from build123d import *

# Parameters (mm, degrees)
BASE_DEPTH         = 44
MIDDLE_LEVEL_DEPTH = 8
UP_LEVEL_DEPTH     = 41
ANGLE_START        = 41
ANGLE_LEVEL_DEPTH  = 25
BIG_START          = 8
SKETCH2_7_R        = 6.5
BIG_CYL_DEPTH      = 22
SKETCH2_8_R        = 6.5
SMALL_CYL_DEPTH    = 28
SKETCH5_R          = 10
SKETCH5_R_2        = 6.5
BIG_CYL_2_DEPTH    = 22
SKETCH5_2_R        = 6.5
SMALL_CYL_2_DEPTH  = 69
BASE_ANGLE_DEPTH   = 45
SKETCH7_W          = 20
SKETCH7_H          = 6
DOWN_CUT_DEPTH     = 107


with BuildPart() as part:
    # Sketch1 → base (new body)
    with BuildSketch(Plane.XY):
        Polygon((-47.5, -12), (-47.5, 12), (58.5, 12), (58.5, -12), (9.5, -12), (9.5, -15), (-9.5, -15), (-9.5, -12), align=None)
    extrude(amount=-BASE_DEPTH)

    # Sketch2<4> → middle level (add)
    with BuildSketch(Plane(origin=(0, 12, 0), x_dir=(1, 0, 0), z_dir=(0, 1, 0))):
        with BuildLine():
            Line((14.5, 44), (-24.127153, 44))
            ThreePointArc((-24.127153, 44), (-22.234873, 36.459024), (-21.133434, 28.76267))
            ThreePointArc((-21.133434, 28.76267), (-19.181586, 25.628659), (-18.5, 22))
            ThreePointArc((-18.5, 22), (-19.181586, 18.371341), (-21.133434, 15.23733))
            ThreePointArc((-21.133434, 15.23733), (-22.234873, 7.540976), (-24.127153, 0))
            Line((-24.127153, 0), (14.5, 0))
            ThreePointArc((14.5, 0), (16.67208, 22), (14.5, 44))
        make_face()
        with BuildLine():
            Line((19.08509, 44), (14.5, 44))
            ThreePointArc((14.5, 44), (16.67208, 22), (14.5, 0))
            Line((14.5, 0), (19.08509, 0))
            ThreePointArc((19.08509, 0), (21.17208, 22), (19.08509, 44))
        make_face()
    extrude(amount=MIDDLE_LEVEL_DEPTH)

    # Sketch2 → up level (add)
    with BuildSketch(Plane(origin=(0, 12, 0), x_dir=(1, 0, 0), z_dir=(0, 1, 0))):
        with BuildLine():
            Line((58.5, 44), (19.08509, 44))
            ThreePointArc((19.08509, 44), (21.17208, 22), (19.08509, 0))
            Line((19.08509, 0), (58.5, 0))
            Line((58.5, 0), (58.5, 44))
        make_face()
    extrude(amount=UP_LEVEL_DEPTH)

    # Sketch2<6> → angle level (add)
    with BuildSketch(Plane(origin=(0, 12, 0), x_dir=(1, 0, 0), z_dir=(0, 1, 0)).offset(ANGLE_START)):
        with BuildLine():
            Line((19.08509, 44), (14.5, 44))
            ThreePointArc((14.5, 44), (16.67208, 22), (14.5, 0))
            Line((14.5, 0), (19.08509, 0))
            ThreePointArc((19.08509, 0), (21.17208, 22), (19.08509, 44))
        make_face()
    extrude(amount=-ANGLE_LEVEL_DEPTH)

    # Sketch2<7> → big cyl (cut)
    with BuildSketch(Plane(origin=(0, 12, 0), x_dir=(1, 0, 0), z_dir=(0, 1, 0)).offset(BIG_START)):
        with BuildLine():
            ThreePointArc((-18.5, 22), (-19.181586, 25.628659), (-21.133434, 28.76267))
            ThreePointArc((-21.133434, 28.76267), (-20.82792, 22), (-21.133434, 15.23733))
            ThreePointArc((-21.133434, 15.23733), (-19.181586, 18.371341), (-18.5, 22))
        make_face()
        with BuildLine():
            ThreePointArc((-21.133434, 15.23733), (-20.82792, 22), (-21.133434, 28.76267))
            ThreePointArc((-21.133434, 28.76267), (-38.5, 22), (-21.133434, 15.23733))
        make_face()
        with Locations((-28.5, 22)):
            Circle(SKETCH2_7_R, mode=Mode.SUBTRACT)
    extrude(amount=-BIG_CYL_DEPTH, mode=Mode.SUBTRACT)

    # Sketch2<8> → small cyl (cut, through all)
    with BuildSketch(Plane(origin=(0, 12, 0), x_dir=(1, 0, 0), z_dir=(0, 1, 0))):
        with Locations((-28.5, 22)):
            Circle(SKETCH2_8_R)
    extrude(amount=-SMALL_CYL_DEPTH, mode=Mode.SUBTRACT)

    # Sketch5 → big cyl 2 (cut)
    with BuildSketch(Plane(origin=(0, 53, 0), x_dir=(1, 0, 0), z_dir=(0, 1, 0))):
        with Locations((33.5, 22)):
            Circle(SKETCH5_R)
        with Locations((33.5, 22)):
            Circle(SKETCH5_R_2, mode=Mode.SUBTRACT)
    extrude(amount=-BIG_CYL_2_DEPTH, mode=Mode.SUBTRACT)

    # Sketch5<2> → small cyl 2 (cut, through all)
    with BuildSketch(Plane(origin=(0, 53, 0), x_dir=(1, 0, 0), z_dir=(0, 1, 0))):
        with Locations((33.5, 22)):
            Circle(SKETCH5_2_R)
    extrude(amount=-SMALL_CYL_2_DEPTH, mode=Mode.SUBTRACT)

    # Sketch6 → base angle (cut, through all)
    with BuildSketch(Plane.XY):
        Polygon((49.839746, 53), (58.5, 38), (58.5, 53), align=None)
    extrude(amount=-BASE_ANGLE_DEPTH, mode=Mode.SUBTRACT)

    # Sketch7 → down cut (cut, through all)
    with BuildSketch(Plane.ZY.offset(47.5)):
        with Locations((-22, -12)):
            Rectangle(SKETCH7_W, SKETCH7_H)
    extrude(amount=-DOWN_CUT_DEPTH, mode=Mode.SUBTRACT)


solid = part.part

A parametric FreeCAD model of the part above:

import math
import FreeCAD as App
import Part
import Sketcher

V = App.Vector
Q = App.Units.Quantity

doc = App.newDocument("Part")
body = doc.addObject("PartDesign::Body", "Body")

# Sketch on XY plane
sketch1 = body.newObject("Sketcher::SketchObject", "Sketch")
sketch1.AttachmentSupport = (doc.getObject("XY_Plane"), [""])
sketch1.MapMode = "FlatFace"
sketch1.addGeometry([
    Part.LineSegment(V(-47.5, 12, 0), V(-47.5, -12, 0)),  # 0
    Part.LineSegment(V(-47.5, -12, 0), V(-9.5, -12, 0)),  # 1
    Part.LineSegment(V(-9.5, -12, 0), V(-9.5, -15, 0)),  # 2
    Part.LineSegment(V(-9.5, -15, 0), V(9.5, -15, 0)),  # 3
    Part.LineSegment(V(9.5, -15, 0), V(9.5, -12, 0)),  # 4
    Part.LineSegment(V(9.5, -12, 0), V(58.5, -12, 0)),  # 5
    Part.LineSegment(V(58.5, -12, 0), V(58.5, 12, 0)),  # 6
    Part.LineSegment(V(58.5, 12, 0), V(-47.5, 12, 0)),  # 7
], False)
sketch1.addConstraint([
    Sketcher.Constraint("Coincident", 0, 2, 1, 1),
    Sketcher.Constraint("Coincident", 1, 2, 2, 1),
    Sketcher.Constraint("Coincident", 2, 2, 3, 1),
    Sketcher.Constraint("Coincident", 3, 2, 4, 1),
    Sketcher.Constraint("Coincident", 4, 2, 5, 1),
    Sketcher.Constraint("Coincident", 5, 2, 6, 1),
    Sketcher.Constraint("Coincident", 6, 2, 7, 1),
    Sketcher.Constraint("Coincident", 7, 2, 0, 1),
    Sketcher.Constraint("Vertical", 0),
    Sketcher.Constraint("Horizontal", 1),
    Sketcher.Constraint("Vertical", 2),
    Sketcher.Constraint("Horizontal", 3),
    Sketcher.Constraint("Vertical", 4),
    Sketcher.Constraint("Horizontal", 5),
    Sketcher.Constraint("Vertical", 6),
    Sketcher.Constraint("Horizontal", 7),
    Sketcher.Constraint("Symmetric", 1, 2, 4, 2, -2),
    Sketcher.Constraint("DistanceX", 1, 1, 1, 2, Q("38 mm")),
    Sketcher.Constraint("DistanceX", 3, 1, 3, 2, Q("19 mm")),
    Sketcher.Constraint("DistanceX", 5, 1, 5, 2, Q("49 mm")),
    Sketcher.Constraint("DistanceY", 0, 2, 0, 1, Q("24 mm")),
    Sketcher.Constraint("DistanceY", 2, 2, 2, 1, Q("3 mm")),
    Sketcher.Constraint("DistanceY", 0, 2, -1, 1, Q("12 mm")),
])
pad1 = body.newObject("PartDesign::Pad", "Pad")
pad1.Profile = sketch1
pad1.Length = 44
pad1.Reversed = True

# Sketch on XZ plane
sketch2 = body.newObject("Sketcher::SketchObject", "Sketch001")
sketch2.AttachmentSupport = (doc.getObject("XZ_Plane"), [""])
sketch2.MapMode = "FlatFace"
sketch2.AttachmentOffset = App.Placement(V(0, 0, -12), App.Rotation())
sketch2.addGeometry([
    Part.ArcOfCircle(Part.Circle(V(-95.82795, -21.999996, 0), V(0, 0, 1), 75.00003), math.radians(-17.05762), math.radians(-5.173327)),  # 0
    Part.ArcOfCircle(Part.Circle(V(-28.499996, -22.000001, 0), V(0, 0, 1), 9.999996), math.radians(-42.552626), math.radians(0.000008)),  # 1
    Part.ArcOfCircle(Part.Circle(V(-28.499996, -21.999999, 0), V(0, 0, 1), 9.999996), math.radians(-0.000008), math.radians(42.552626)),  # 2
    Part.ArcOfCircle(Part.Circle(V(-95.82795, -22.000004, 0), V(0, 0, 1), 75.00003), math.radians(5.173327), math.radians(17.05762)),  # 3
    Part.LineSegment(V(-24.127153, 0, 0), V(19.08509, 0, 0)),  # 4
    Part.ArcOfCircle(Part.Circle(V(-95.827888, -22, 0), V(0, 0, 1), 116.999968), math.radians(-10.838087), math.radians(10.838087)),  # 5
    Part.LineSegment(V(19.08509, -44, 0), V(-24.127153, -44, 0)),  # 6
], False)
sketch2.addConstraint([
    Sketcher.Constraint("Coincident", 0, 2, 1, 1),
    Sketcher.Constraint("Tangent", 1, 2, 2, 1),
    Sketcher.Constraint("Coincident", 2, 2, 3, 1),
    Sketcher.Constraint("Coincident", 3, 2, 4, 1),
    Sketcher.Constraint("Coincident", 4, 2, 5, 2),
    Sketcher.Constraint("Coincident", 5, 1, 6, 1),
    Sketcher.Constraint("Coincident", 6, 2, 0, 1),
    Sketcher.Constraint("Horizontal", 4),
    Sketcher.Constraint("Horizontal", 6),
    Sketcher.Constraint("Coincident", 3, 3, 0, 3),
    Sketcher.Constraint("Equal", 1, 2),
    Sketcher.Constraint("Equal", 0, 3),
    Sketcher.Constraint("PointOnObject", 3, 2, -1),
    Sketcher.Constraint("Horizontal", 2, 3, 5, 3),
    Sketcher.Constraint("Horizontal", 5, 3, 1, 2),
    Sketcher.Constraint("Vertical", 0, 2, 2, 2),
    Sketcher.Constraint("Vertical", 4, 2, 5, 1),
    Sketcher.Constraint("DistanceY", 1, 3, -1, 1, Q("22.000001 mm")),
    Sketcher.Constraint("DistanceX", 1, 2, -1, 1, Q("18.5 mm")),
    Sketcher.Constraint("Radius", 0, Q("75.00003 mm")),
    Sketcher.Constraint("Radius", 5, Q("116.999968 mm")),
    Sketcher.Constraint("Radius", 1, Q("9.999996 mm")),
    Sketcher.Constraint("DistanceX", 4, 1, 4, 2, Q("43.212243 mm")),
    Sketcher.Constraint("DistanceX", 0, 3, -1, 1, Q("95.82795 mm")),
])
pad2 = body.newObject("PartDesign::Pad", "Pad001")
pad2.Profile = sketch2
pad2.Length = 8
pad2.Reversed = True

# Sketch on XZ plane
sketch3 = body.newObject("Sketcher::SketchObject", "Sketch002")
sketch3.AttachmentSupport = (doc.getObject("XZ_Plane"), [""])
sketch3.MapMode = "FlatFace"
sketch3.AttachmentOffset = App.Placement(V(0, 0, -12), App.Rotation())
sketch3.addGeometry([
    Part.LineSegment(V(58.5, -44, 0), V(19.08509, -44, 0)),
    Part.ArcOfCircle(Part.Circle(V(-95.827888, -22, 0), V(0, 0, 1), 116.999968), math.radians(-10.838087), math.radians(10.838087)),
    Part.LineSegment(V(19.08509, 0, 0), V(58.5, 0, 0)),
    Part.LineSegment(V(58.5, 0, 0), V(58.5, -44, 0)),
], False)
sketch3.addConstraint([
    Sketcher.Constraint("Coincident", 0, 2, 1, 1),
    Sketcher.Constraint("Coincident", 1, 2, 2, 1),
    Sketcher.Constraint("Coincident", 2, 2, 3, 1),
    Sketcher.Constraint("Coincident", 3, 2, 0, 1),
    Sketcher.Constraint("Horizontal", 0),
    Sketcher.Constraint("Horizontal", 2),
    Sketcher.Constraint("Vertical", 3),
    Sketcher.Constraint("PointOnObject", 1, 2, -1),
    Sketcher.Constraint("Vertical", 0, 2, 1, 2),
    Sketcher.Constraint("DistanceY", 3, 2, 3, 1, Q("44 mm")),
    Sketcher.Constraint("DistanceX", -1, 1, 2, 2, Q("58.5 mm")),
    Sketcher.Constraint("Radius", 1, Q("116.999968 mm")),
    Sketcher.Constraint("DistanceX", 0, 2, 0, 1, Q("39.41491 mm")),
])
pad3 = body.newObject("PartDesign::Pad", "Pad002")
pad3.Profile = sketch3
pad3.Length = 41
pad3.Reversed = True

# Sketch on XZ plane
sketch4 = body.newObject("Sketcher::SketchObject", "Sketch003")
sketch4.AttachmentSupport = (doc.getObject("XZ_Plane"), [""])
sketch4.MapMode = "FlatFace"
sketch4.AttachmentOffset = App.Placement(V(0, 0, -53), App.Rotation())
sketch4.addGeometry([
    Part.LineSegment(V(19.08509, -44, 0), V(14.5, -44, 0)),
    Part.ArcOfCircle(Part.Circle(V(-95.827904, -22, 0), V(0, 0, 1), 112.499984), math.radians(-11.277181), math.radians(11.277181)),
    Part.LineSegment(V(14.5, 0, 0), V(19.08509, 0, 0)),
    Part.ArcOfCircle(Part.Circle(V(-95.827888, -22, 0), V(0, 0, 1), 116.999968), math.radians(-10.838087), math.radians(10.838087)),
], False)
sketch4.addConstraint([
    Sketcher.Constraint("Coincident", 0, 2, 1, 1),
    Sketcher.Constraint("Coincident", 1, 2, 2, 1),
    Sketcher.Constraint("Coincident", 2, 2, 3, 2),
    Sketcher.Constraint("Coincident", 3, 1, 0, 1),
    Sketcher.Constraint("Horizontal", 0),
    Sketcher.Constraint("Horizontal", 2),
    Sketcher.Constraint("PointOnObject", 1, 2, -1),
    Sketcher.Constraint("Horizontal", 1, 3, 3, 3),
    Sketcher.Constraint("Vertical", 0, 2, 1, 2),
    Sketcher.Constraint("DistanceY", 1, 3, -1, 1, Q("22 mm")),
    Sketcher.Constraint("DistanceX", -1, 1, 0, 2, Q("14.5 mm")),
    Sketcher.Constraint("Radius", 3, Q("116.999968 mm")),
    Sketcher.Constraint("Radius", 1, Q("112.499984 mm")),
    Sketcher.Constraint("DistanceX", 0, 2, 0, 1, Q("4.58509 mm")),
])
pad4 = body.newObject("PartDesign::Pad", "Pad003")
pad4.Profile = sketch4
pad4.Length = 25

# Sketch on XZ plane
sketch5 = body.newObject("Sketcher::SketchObject", "Sketch004")
sketch5.AttachmentSupport = (doc.getObject("XZ_Plane"), [""])
sketch5.MapMode = "FlatFace"
sketch5.AttachmentOffset = App.Placement(V(0, 0, -20), App.Rotation())
sketch5.addGeometry([
    Part.ArcOfCircle(Part.Circle(V(-28.499996, -22.000001, 0), V(0, 0, 1), 9.999996), math.radians(-42.552626), math.radians(0.000008)),
    Part.ArcOfCircle(Part.Circle(V(-28.5, -22, 0), V(0, 0, 1), 10), math.radians(42.552617), math.radians(317.447383)),
    Part.ArcOfCircle(Part.Circle(V(-28.499996, -21.999999, 0), V(0, 0, 1), 9.999996), math.radians(-0.000008), math.radians(42.552626)),
    Part.Circle(V(-28.5, -22, 0), V(0, 0, 1), 6.5),
], False)
sketch5.addConstraint([
    Sketcher.Constraint("Tangent", 0, 1, 1, 2),
    Sketcher.Constraint("Tangent", 1, 1, 2, 2),
    Sketcher.Constraint("Tangent", 2, 1, 0, 2),
    Sketcher.Constraint("Coincident", 3, 3, 0, 3),
    Sketcher.Constraint("Horizontal", 3, 3, 2, 1),
    Sketcher.Constraint("Vertical", 0, 1, 1, 1),
    Sketcher.Constraint("Diameter", 3, Q("13 mm")),
    Sketcher.Constraint("Radius", 1, Q("10 mm")),
    Sketcher.Constraint("DistanceY", 0, 3, -1, 1, Q("22.000001 mm")),
    Sketcher.Constraint("DistanceX", 1, 3, -1, 1, Q("28.5 mm")),
    Sketcher.Constraint("DistanceY", 0, 1, -1, 1, Q("28.76267 mm")),
])
pocket1 = body.newObject("PartDesign::Pocket", "Pocket")
pocket1.Profile = sketch5
pocket1.Length = 22
pocket1.Reversed = True

# Sketch on XZ plane
sketch6 = body.newObject("Sketcher::SketchObject", "Sketch005")
sketch6.AttachmentSupport = (doc.getObject("XZ_Plane"), [""])
sketch6.MapMode = "FlatFace"
sketch6.AttachmentOffset = App.Placement(V(0, 0, -12), App.Rotation())
sketch6.addGeometry(Part.Circle(V(-28.5, -22, 0), V(0, 0, 1), 6.5), False)
sketch6.addConstraint([
    Sketcher.Constraint("Diameter", 0, Q("13 mm")),
    Sketcher.Constraint("DistanceY", 0, 3, -1, 1, Q("22 mm")),
    Sketcher.Constraint("DistanceX", 0, 3, -1, 1, Q("28.5 mm")),
])
pocket2 = body.newObject("PartDesign::Pocket", "Pocket001")
pocket2.Profile = sketch6
pocket2.Type = "ThroughAll"
pocket2.Reversed = True

# Sketch on XZ plane
sketch7 = body.newObject("Sketcher::SketchObject", "Sketch006")
sketch7.AttachmentSupport = (doc.getObject("XZ_Plane"), [""])
sketch7.MapMode = "FlatFace"
sketch7.AttachmentOffset = App.Placement(V(0, 0, -53), App.Rotation())
sketch7.addGeometry([
    Part.Circle(V(33.5, -22, 0), V(0, 0, 1), 10),
    Part.Circle(V(33.5, -22, 0), V(0, 0, 1), 6.5),
], False)
sketch7.addConstraint([
    Sketcher.Constraint("Coincident", 1, 3, 0, 3),
    Sketcher.Constraint("Diameter", 0, Q("20 mm")),
    Sketcher.Constraint("Diameter", 1, Q("13 mm")),
    Sketcher.Constraint("DistanceY", 0, 3, -1, 1, Q("22 mm")),
    Sketcher.Constraint("DistanceX", -1, 1, 0, 3, Q("33.5 mm")),
])
pocket3 = body.newObject("PartDesign::Pocket", "Pocket002")
pocket3.Profile = sketch7
pocket3.Length = 22
pocket3.Reversed = True

# Sketch on XZ plane
sketch8 = body.newObject("Sketcher::SketchObject", "Sketch007")
sketch8.AttachmentSupport = (doc.getObject("XZ_Plane"), [""])
sketch8.MapMode = "FlatFace"
sketch8.AttachmentOffset = App.Placement(V(0, 0, -53), App.Rotation())
sketch8.addGeometry(Part.Circle(V(33.5, -22, 0), V(0, 0, 1), 6.5), False)
sketch8.addConstraint([
    Sketcher.Constraint("Diameter", 0, Q("13 mm")),
    Sketcher.Constraint("DistanceY", 0, 3, -1, 1, Q("22 mm")),
    Sketcher.Constraint("DistanceX", -1, 1, 0, 3, Q("33.5 mm")),
])
pocket4 = body.newObject("PartDesign::Pocket", "Pocket003")
pocket4.Profile = sketch8
pocket4.Type = "ThroughAll"
pocket4.Reversed = True

# Sketch on XY plane
sketch9 = body.newObject("Sketcher::SketchObject", "Sketch008")
sketch9.AttachmentSupport = (doc.getObject("XY_Plane"), [""])
sketch9.MapMode = "FlatFace"
sketch9.addGeometry([
    Part.LineSegment(V(49.839746, 53, 0), V(58.5, 38, 0)),
    Part.LineSegment(V(58.5, 38, 0), V(58.5, 53, 0)),
    Part.LineSegment(V(58.5, 53, 0), V(49.839746, 53, 0)),
], False)
sketch9.addConstraint([
    Sketcher.Constraint("Coincident", 0, 2, 1, 1),
    Sketcher.Constraint("Coincident", 1, 2, 2, 1),
    Sketcher.Constraint("Coincident", 2, 2, 0, 1),
    Sketcher.Constraint("Vertical", 1),
    Sketcher.Constraint("Horizontal", 2),
    Sketcher.Constraint("DistanceY", 1, 1, 1, 2, Q("15 mm")),
    Sketcher.Constraint("Angle", 0, Q("-60 deg")),
    Sketcher.Constraint("DistanceY", -1, 1, 0, 2, Q("38 mm")),
    Sketcher.Constraint("DistanceX", -1, 1, 0, 2, Q("58.5 mm")),
])
pocket5 = body.newObject("PartDesign::Pocket", "Pocket004")
pocket5.Profile = sketch9
pocket5.Type = "ThroughAll"

# Sketch on YZ plane
sketch10 = body.newObject("Sketcher::SketchObject", "Sketch009")
sketch10.AttachmentSupport = (doc.getObject("YZ_Plane"), [""])
sketch10.MapMode = "FlatFace"
sketch10.AttachmentOffset = App.Placement(V(0, 0, -47.5), App.Rotation())
sketch10.addGeometry([
    Part.LineSegment(V(-9, -32, 0), V(-15, -32, 0)),
    Part.LineSegment(V(-15, -32, 0), V(-15, -12, 0)),
    Part.LineSegment(V(-15, -12, 0), V(-9, -12, 0)),
    Part.LineSegment(V(-9, -12, 0), V(-9, -32, 0)),
], False)
sketch10.addConstraint([
    Sketcher.Constraint("Coincident", 0, 2, 1, 1),
    Sketcher.Constraint("Coincident", 1, 2, 2, 1),
    Sketcher.Constraint("Coincident", 2, 2, 3, 1),
    Sketcher.Constraint("Coincident", 3, 2, 0, 1),
    Sketcher.Constraint("Horizontal", 0),
    Sketcher.Constraint("Vertical", 1),
    Sketcher.Constraint("Horizontal", 2),
    Sketcher.Constraint("Vertical", 3),
    Sketcher.Constraint("DistanceX", 0, 2, 0, 1, Q("6 mm")),
    Sketcher.Constraint("DistanceY", 1, 1, 1, 2, Q("20 mm")),
    Sketcher.Constraint("DistanceX", 0, 2, -1, 1, Q("15 mm")),
    Sketcher.Constraint("DistanceY", 0, 2, -1, 1, Q("32 mm")),
])
pocket6 = body.newObject("PartDesign::Pocket", "Pocket005")
pocket6.Profile = sketch10
pocket6.Type = "ThroughAll"
pocket6.Reversed = True

doc.recompute()
